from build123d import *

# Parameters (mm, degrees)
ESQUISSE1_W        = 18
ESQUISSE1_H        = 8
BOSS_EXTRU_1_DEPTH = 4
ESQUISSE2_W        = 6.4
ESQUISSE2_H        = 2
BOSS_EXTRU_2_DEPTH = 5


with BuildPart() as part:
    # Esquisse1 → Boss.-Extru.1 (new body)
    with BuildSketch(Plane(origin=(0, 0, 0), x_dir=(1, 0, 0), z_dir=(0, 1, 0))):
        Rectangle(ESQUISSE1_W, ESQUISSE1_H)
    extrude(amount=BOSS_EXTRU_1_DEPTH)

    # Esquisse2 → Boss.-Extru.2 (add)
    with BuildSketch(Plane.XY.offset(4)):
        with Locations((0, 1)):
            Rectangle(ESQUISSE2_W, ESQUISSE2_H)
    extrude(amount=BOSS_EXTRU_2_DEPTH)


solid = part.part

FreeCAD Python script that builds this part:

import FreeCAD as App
import Part
import Sketcher


def add_polygon(sketch, points):
    """Adds a closed chain of lines whose ends are joined by coincident constraints."""
    first, n = sketch.GeometryCount, len(points)
    for a, b in zip(points, points[1:] + points[:1]):
        sketch.addGeometry(Part.LineSegment(App.Vector(*a, 0), App.Vector(*b, 0)), False)
    for i in range(n):
        sketch.addConstraint(Sketcher.Constraint("Coincident", first + i, 2, first + (i + 1) % n, 1))

doc = App.newDocument("Part")
params = doc.addObject("Spreadsheet::Sheet", "Params")
for row, (alias, value) in enumerate([
    ("sketch1_width", "18 mm"),
    ("sketch1_height", "8 mm"),
    ("pad1_length", "4 mm"),
    ("sketch2_height", "2 mm"),
    ("sketch2_width", "6.4 mm"),
    ("pad2_length", "5 mm"),
], start=1):
    params.set(f"A{row}", alias)
    params.set(f"B{row}", "=" + value)
    params.setAlias(f"B{row}", alias)

body = doc.addObject("PartDesign::Body", "Body")

# Sketch on XZ plane
sketch1 = doc.addObject("Sketcher::SketchObject", "Sketch")
body.addObject(sketch1)
sketch1.AttachmentSupport = (doc.XZ_Plane, [""])
sketch1.MapMode = "FlatFace"
add_polygon(sketch1, [(-9, -4), (-9, 4), (9, 4), (9, -4)])  # lines 0-3
sketch1.addConstraint([
    Sketcher.Constraint("Vertical", 0),
    Sketcher.Constraint("Horizontal", 1),
    Sketcher.Constraint("Vertical", 2),
    Sketcher.Constraint("Horizontal", 3),
    Sketcher.Constraint("Symmetric", 0, 2, 2, 2, -1, 1),
    Sketcher.Constraint("DistanceX", 1, 1, 1, 2, 18.0),
    Sketcher.Constraint("DistanceY", 0, 1, 0, 2, 8.0),
])
sketch1.setExpression("Constraints[9]", "Params.sketch1_width")
sketch1.setExpression("Constraints[10]", "Params.sketch1_height")
pad1 = doc.addObject("PartDesign::Pad", "Pad")
body.addObject(pad1)
pad1.Profile = sketch1
pad1.setExpression("Length", "Params.pad1_length")
pad1.Reversed = True

# Sketch on XY plane
sketch2 = doc.addObject("Sketcher::SketchObject", "Sketch001")
body.addObject(sketch2)
sketch2.AttachmentSupport = (doc.XY_Plane, [""])
sketch2.MapMode = "FlatFace"
sketch2.AttachmentOffset = App.Placement(App.Vector(0, 0, 4), App.Rotation())
add_polygon(sketch2, [(-3.2, 2), (-3.2, 0), (3.2, 0), (3.2, 2)])  # lines 0-3
sketch2.addConstraint([
    Sketcher.Constraint("Vertical", 0),
    Sketcher.Constraint("Horizontal", 1),
    Sketcher.Constraint("Vertical", 2),
    Sketcher.Constraint("Horizontal", 3),
    Sketcher.Constraint("Symmetric", 0, 2, 1, 2, -1, 1),
    Sketcher.Constraint("DistanceY", 0, 2, 0, 1, 2.0),
    Sketcher.Constraint("DistanceX", 1, 1, 1, 2, 6.4),
])
sketch2.setExpression("Constraints[9]", "Params.sketch2_height")
sketch2.setExpression("Constraints[10]", "Params.sketch2_width")
pad2 = doc.addObject("PartDesign::Pad", "Pad001")
body.addObject(pad2)
pad2.Profile = sketch2
pad2.setExpression("Length", "Params.pad2_length")

doc.recompute()
